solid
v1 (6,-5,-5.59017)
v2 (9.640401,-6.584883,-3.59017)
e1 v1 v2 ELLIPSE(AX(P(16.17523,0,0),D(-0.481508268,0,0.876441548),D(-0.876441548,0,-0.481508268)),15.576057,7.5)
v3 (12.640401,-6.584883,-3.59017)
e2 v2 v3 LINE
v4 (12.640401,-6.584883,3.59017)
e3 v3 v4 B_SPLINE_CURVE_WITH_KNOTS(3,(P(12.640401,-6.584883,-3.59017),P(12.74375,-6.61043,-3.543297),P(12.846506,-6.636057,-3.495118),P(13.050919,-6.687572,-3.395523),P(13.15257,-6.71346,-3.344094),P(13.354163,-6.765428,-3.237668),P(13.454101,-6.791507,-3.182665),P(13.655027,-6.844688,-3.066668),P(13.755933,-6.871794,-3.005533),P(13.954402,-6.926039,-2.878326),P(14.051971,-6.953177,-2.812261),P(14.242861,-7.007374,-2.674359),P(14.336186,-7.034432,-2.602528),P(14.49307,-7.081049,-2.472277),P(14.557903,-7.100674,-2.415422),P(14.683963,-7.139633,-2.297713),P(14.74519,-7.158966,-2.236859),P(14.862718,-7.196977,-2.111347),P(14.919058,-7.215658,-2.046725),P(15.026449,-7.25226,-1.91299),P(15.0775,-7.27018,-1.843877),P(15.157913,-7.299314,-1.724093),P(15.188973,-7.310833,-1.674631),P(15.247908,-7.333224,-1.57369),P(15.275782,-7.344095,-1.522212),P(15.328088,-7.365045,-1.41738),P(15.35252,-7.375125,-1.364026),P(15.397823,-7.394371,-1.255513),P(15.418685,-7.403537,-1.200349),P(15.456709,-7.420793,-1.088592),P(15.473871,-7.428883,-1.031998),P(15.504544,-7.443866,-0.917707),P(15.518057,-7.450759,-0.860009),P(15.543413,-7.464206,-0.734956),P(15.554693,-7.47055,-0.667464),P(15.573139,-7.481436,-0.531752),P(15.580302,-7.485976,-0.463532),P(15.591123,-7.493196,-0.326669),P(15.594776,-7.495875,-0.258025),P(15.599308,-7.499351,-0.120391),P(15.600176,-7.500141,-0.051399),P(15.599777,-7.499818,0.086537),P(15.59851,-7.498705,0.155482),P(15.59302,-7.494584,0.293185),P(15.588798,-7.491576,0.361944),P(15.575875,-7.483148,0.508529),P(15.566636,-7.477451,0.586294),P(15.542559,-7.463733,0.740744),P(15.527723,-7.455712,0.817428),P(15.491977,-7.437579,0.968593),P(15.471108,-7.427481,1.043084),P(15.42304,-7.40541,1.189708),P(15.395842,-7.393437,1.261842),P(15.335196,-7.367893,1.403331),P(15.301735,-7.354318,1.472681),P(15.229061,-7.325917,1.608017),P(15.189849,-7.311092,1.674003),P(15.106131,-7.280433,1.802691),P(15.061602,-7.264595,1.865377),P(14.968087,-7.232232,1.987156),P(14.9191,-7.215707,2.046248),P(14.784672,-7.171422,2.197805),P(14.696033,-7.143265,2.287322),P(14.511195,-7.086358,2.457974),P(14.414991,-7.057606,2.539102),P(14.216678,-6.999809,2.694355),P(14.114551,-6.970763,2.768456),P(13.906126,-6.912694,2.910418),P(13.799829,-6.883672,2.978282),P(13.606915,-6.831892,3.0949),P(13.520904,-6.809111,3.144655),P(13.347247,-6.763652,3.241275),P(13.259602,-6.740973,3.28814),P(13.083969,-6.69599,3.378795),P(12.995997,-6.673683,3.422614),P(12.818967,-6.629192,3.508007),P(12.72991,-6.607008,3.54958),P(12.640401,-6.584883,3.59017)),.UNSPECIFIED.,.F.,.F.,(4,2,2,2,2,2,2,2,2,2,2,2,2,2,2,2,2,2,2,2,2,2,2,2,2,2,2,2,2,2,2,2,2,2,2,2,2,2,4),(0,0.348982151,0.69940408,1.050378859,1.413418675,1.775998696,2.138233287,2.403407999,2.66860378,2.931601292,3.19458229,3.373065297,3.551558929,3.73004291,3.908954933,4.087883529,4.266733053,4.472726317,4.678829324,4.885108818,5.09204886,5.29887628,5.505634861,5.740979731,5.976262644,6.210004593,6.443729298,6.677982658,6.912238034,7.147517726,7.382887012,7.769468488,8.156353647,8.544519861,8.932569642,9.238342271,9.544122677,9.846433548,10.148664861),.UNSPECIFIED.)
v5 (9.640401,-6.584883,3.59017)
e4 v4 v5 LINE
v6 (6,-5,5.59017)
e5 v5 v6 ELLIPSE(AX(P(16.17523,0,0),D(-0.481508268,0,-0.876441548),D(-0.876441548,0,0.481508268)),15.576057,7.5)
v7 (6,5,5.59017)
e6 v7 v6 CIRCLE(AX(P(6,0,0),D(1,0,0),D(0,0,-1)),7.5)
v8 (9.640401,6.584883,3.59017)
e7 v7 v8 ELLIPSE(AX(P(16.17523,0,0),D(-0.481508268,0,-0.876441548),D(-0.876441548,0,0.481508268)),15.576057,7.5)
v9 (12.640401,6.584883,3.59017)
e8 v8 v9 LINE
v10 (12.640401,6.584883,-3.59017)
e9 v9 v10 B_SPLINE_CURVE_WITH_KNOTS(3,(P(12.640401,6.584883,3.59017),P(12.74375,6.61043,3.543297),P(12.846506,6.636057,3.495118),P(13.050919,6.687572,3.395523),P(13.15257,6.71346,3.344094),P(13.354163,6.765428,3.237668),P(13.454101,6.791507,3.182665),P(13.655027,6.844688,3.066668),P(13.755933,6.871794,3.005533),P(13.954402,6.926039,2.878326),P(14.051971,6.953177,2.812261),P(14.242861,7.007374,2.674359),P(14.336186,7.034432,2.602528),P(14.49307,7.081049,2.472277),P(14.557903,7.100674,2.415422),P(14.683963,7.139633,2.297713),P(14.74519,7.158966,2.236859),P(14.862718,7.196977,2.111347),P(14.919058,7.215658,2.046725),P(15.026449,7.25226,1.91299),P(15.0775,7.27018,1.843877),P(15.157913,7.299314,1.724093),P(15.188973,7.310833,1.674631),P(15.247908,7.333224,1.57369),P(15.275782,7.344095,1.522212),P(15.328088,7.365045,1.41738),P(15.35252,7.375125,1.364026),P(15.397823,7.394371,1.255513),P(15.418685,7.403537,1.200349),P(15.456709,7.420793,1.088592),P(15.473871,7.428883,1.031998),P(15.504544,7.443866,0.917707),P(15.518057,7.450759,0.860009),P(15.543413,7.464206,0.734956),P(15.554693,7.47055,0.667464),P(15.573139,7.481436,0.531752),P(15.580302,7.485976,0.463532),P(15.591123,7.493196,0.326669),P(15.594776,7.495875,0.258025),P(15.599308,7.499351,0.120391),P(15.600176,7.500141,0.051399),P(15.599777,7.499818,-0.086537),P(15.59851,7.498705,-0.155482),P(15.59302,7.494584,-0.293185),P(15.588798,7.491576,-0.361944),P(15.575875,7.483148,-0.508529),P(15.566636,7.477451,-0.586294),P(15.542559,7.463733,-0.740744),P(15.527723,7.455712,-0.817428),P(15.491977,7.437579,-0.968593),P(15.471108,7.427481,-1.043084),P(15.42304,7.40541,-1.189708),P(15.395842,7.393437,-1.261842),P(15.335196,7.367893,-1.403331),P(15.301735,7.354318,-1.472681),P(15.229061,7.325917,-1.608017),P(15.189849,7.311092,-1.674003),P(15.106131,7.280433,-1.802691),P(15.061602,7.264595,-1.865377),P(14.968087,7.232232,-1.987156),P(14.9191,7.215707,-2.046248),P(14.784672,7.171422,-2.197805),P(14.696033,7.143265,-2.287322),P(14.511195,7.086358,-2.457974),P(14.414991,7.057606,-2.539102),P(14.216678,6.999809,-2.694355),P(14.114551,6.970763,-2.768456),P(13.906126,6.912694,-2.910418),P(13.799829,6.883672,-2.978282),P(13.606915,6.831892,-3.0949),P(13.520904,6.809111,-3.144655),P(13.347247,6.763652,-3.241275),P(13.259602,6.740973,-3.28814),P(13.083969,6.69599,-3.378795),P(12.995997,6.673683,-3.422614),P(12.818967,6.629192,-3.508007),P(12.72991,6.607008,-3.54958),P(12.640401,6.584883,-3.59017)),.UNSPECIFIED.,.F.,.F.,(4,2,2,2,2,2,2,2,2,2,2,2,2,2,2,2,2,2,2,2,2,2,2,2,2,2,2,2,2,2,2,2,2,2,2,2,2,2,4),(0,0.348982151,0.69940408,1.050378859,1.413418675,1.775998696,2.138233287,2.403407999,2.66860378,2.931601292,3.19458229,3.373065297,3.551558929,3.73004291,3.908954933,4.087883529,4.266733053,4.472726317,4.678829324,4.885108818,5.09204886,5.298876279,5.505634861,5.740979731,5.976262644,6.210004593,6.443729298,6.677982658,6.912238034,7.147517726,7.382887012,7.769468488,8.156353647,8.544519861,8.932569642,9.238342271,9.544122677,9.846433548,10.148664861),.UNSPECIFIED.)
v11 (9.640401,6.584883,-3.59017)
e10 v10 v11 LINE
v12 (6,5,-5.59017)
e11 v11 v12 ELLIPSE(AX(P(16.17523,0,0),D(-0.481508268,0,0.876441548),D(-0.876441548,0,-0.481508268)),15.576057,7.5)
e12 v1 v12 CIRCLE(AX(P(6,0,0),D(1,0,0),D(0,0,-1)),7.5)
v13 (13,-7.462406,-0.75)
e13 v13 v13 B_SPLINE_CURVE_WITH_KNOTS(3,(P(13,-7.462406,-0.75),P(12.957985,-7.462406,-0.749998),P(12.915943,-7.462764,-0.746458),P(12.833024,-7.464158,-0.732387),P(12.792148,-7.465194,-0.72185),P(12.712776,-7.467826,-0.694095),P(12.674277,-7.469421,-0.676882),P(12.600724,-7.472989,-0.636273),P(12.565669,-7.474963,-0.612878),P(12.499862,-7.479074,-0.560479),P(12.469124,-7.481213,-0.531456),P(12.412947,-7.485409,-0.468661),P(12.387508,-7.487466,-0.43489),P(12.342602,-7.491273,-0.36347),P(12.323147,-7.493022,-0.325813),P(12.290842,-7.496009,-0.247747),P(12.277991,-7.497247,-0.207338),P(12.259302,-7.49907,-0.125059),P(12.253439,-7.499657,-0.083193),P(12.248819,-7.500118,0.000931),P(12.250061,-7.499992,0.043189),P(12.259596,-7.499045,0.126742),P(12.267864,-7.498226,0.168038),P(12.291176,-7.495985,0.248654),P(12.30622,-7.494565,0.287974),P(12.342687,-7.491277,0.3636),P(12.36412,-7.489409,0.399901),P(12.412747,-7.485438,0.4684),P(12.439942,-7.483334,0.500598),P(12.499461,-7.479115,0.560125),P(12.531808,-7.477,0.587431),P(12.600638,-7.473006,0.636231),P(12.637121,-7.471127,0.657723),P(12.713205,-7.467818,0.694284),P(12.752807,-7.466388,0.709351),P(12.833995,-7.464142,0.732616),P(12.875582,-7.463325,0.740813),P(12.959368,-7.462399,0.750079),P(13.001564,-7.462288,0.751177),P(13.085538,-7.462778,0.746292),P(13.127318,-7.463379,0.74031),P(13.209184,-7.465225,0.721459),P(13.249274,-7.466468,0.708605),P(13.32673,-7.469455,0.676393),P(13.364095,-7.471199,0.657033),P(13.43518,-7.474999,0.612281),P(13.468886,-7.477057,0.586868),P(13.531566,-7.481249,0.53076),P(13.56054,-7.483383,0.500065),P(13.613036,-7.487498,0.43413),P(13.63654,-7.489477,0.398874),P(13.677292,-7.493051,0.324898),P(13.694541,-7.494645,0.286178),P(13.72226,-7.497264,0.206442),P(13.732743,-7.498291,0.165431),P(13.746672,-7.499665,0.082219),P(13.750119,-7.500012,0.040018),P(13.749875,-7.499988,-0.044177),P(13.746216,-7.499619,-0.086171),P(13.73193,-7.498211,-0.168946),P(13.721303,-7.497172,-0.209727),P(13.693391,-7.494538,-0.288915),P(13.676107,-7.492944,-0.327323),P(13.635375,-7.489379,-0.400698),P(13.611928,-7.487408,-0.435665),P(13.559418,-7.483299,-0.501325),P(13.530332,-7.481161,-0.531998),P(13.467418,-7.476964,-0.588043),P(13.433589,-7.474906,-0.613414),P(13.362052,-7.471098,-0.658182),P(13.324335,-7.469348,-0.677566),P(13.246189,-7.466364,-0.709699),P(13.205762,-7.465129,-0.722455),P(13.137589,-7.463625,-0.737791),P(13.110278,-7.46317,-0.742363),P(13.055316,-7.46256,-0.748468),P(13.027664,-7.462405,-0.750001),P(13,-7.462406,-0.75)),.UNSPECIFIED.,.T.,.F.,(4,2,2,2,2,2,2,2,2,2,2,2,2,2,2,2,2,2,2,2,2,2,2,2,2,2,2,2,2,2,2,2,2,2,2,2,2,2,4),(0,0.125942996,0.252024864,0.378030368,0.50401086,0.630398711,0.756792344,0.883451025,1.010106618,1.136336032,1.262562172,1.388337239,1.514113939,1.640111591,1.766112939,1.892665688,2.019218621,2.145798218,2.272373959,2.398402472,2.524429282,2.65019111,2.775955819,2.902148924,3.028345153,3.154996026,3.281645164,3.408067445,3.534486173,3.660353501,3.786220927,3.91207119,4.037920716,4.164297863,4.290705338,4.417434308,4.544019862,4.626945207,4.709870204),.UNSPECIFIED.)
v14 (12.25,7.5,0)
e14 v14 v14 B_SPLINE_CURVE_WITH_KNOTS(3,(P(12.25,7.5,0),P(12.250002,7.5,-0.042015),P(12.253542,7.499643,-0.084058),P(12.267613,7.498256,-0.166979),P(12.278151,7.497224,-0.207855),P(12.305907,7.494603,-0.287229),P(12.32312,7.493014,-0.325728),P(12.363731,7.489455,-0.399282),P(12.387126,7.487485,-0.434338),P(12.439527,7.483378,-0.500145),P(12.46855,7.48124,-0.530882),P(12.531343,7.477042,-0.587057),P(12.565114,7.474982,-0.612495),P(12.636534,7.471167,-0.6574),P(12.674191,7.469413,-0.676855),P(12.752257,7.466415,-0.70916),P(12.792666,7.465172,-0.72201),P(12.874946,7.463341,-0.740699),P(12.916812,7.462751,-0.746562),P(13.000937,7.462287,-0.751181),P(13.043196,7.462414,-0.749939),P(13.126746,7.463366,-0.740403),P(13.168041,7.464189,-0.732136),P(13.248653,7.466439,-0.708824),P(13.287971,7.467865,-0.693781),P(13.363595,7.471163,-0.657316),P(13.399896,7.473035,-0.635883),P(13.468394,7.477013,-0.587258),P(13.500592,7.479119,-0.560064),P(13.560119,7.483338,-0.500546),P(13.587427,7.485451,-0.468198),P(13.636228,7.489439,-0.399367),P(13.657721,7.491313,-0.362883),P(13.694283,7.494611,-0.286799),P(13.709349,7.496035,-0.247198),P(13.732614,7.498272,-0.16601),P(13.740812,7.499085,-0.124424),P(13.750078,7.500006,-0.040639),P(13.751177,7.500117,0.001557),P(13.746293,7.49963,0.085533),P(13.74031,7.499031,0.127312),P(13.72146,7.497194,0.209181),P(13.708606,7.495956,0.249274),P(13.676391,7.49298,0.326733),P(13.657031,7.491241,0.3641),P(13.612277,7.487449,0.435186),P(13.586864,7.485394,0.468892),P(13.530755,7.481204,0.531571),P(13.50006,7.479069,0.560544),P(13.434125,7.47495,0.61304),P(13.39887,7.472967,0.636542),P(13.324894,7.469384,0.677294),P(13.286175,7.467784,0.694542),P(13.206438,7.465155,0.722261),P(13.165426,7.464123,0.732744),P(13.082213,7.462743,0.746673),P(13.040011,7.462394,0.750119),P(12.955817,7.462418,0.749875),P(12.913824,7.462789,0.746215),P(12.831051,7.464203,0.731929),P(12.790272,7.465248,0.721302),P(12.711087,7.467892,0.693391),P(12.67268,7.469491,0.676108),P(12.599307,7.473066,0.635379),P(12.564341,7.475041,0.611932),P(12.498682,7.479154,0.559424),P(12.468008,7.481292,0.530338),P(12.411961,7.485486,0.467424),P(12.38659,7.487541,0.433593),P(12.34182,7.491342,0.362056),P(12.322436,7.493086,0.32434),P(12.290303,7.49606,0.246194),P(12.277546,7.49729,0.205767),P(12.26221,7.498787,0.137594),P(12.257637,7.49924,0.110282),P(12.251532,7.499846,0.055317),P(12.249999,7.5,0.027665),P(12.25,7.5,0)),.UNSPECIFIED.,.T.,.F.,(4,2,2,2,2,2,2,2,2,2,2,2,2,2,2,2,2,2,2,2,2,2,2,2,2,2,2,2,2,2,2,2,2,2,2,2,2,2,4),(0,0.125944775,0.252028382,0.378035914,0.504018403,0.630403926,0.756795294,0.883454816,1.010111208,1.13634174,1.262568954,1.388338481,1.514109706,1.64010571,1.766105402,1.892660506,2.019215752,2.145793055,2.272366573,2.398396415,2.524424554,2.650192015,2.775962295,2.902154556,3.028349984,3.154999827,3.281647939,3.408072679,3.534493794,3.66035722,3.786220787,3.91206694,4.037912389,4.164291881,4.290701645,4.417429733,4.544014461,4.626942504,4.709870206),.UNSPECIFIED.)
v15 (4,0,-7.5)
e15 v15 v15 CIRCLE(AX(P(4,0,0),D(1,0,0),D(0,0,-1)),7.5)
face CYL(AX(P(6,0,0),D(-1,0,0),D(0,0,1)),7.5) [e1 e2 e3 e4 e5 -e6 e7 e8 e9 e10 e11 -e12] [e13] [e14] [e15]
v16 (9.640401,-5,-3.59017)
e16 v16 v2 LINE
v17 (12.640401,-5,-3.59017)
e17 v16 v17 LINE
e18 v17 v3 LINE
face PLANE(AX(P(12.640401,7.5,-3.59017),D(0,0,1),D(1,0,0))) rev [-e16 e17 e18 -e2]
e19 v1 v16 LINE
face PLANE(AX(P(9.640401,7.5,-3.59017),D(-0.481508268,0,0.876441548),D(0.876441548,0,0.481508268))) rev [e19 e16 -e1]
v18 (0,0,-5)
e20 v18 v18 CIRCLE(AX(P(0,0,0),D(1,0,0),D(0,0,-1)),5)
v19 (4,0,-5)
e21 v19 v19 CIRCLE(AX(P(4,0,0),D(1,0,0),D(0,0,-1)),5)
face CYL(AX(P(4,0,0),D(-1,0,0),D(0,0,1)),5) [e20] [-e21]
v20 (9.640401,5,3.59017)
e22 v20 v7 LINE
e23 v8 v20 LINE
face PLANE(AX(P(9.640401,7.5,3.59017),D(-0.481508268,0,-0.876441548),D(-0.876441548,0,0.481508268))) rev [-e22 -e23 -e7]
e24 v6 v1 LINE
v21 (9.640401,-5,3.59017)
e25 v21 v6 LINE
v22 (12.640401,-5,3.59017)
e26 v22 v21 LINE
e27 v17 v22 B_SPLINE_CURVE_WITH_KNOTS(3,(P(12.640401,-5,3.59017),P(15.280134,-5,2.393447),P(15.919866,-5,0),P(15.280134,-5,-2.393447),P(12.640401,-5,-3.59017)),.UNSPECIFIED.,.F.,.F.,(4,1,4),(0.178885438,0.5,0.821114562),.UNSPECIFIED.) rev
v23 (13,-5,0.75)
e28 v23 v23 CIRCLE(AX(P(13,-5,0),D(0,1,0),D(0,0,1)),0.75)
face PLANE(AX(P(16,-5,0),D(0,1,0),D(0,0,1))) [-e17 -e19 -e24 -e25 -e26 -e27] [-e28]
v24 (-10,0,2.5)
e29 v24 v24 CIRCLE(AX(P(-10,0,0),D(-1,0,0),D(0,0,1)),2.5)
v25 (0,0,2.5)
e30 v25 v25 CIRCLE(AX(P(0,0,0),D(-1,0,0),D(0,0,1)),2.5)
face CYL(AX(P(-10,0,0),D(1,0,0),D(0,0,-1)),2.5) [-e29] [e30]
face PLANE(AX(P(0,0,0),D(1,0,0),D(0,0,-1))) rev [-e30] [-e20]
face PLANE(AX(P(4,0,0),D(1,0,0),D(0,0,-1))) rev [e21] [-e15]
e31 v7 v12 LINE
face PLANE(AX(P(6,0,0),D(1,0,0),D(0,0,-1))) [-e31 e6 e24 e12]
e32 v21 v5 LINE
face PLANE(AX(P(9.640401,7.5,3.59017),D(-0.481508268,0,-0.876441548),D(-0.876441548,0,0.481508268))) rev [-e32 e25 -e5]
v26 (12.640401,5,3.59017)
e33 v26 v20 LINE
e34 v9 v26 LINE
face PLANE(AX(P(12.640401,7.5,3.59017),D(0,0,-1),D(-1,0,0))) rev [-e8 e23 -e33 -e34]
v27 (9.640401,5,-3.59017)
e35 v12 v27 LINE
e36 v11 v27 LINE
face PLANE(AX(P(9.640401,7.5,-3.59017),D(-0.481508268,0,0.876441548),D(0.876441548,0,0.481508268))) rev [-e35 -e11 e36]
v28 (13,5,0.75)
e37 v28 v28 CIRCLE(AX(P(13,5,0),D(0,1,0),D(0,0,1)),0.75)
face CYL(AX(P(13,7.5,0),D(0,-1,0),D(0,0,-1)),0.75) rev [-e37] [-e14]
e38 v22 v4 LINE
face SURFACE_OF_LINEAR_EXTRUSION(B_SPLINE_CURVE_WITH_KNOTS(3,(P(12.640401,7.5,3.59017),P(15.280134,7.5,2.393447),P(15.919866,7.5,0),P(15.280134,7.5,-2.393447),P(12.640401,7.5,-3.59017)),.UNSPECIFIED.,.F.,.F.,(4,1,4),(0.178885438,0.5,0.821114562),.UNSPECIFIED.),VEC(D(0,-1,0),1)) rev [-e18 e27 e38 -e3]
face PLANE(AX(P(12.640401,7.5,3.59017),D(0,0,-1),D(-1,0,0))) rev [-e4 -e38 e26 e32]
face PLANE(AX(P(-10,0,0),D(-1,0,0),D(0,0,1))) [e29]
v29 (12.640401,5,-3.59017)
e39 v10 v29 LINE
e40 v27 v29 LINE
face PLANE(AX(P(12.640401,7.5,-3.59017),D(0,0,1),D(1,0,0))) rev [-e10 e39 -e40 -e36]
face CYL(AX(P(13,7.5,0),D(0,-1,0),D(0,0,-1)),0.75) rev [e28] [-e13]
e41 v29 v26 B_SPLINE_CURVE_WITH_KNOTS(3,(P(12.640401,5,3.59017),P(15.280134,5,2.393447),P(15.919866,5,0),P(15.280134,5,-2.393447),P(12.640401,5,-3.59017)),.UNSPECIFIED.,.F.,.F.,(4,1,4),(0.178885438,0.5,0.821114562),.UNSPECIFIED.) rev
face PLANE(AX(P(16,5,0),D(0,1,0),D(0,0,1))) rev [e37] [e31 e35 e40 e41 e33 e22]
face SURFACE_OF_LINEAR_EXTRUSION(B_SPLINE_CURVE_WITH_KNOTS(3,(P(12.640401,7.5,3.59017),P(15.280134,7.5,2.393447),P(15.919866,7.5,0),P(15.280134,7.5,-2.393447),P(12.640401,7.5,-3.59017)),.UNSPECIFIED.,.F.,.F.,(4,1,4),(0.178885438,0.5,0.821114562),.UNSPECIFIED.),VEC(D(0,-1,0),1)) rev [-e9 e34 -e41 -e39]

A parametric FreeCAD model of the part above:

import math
import FreeCAD as App
import Part
import Sketcher

V = App.Vector

doc = App.newDocument("Part")
body = doc.addObject("PartDesign::Body", "Body")

sketch1 = doc.addObject("Sketcher::SketchObject", "Sketch")
body.addObject(sketch1)
sketch1.AttachmentSupport = (doc.YZ_Plane, [""])
sketch1.MapMode = "FlatFace"
sketch1.addGeometry(Part.Circle(V(0, 0, 0), V(0, 0, 1), 5), False)
sketch1.addConstraint([
    Sketcher.Constraint("Coincident", 0, 3, -1, 1),
    Sketcher.Constraint("Diameter", 0, 10.0),
])
pad1 = doc.addObject("PartDesign::Pad", "Pad")
body.addObject(pad1)
pad1.Profile = sketch1
pad1.Length = 4

sketch2 = doc.addObject("Sketcher::SketchObject", "Sketch001")
body.addObject(sketch2)
sketch2.AttachmentSupport = (doc.YZ_Plane, [""])
sketch2.MapMode = "FlatFace"
sketch2.AttachmentOffset = App.Placement(V(0, 0, 4), App.Rotation())
sketch2.addGeometry(Part.Circle(V(0, 0, 0), V(0, 0, 1), 8), False)
sketch2.addConstraint([
    Sketcher.Constraint("Coincident", 0, 3, -1, 1),
    Sketcher.Constraint("Diameter", 0, 15.0),
])
pad2 = doc.addObject("PartDesign::Pad", "Pad001")
body.addObject(pad2)
pad2.Profile = sketch2
pad2.Length = 2

sketch3 = doc.addObject("Sketcher::SketchObject", "Sketch002")
body.addObject(sketch3)
sketch3.AttachmentSupport = (doc.YZ_Plane, [""])
sketch3.MapMode = "FlatFace"
sketch3.AttachmentOffset = App.Placement(V(0, 0, 6), App.Rotation())
sketch3.addGeometry([
    Part.ArcOfCircle(Part.Circle(V(0, 0, 0), V(0, 0, 1), 8), math.radians(-48), math.radians(48)),
    Part.LineSegment(V(5, 6, 0), V(5, -6, 0)),
    Part.ArcOfCircle(Part.Circle(V(0, 0, 0), V(0, 0, 1), 8), math.radians(132), math.radians(228)),
    Part.LineSegment(V(-5, -6, 0), V(-5, 6, 0)),
], False)
sketch3.addConstraint([
    Sketcher.Constraint("Coincident", 0, 1, 1, 2),
    Sketcher.Constraint("Coincident", 1, 1, 0, 2),
    Sketcher.Constraint("Coincident", 2, 1, 3, 2),
    Sketcher.Constraint("Coincident", 3, 1, 2, 2),
    Sketcher.Constraint("Vertical", 1),
    Sketcher.Constraint("Vertical", 3),
    Sketcher.Constraint("Coincident", 0, 3, -1, 1),
    Sketcher.Constraint("Coincident", 2, 3, -1, 1),
    Sketcher.Constraint("Equal", 0, 2),
    Sketcher.Constraint("Horizontal", 1, 1, 2, 1),
    Sketcher.Constraint("Radius", 0, 7.5),
    Sketcher.Constraint("DistanceX", -1, 1, 0, 1, 5.0),
])
pad3 = doc.addObject("PartDesign::Pad", "Pad002")
body.addObject(pad3)
pad3.Profile = sketch3
pad3.Length = 10

sketch4 = doc.addObject("Sketcher::SketchObject", "Sketch003")
body.addObject(sketch4)
sketch4.AttachmentSupport = (doc.XZ_Plane, [""])
sketch4.MapMode = "FlatFace"
sketch4.AttachmentOffset = App.Placement(V(0, 0, -5), App.Rotation())
sketch4.addGeometry([
    Part.LineSegment(V(16, 5.59017, 0), V(6, 5.59017, 0)),
    Part.LineSegment(V(6, 5.59017, 0), V(9.640401, 3.59017, 0)),
    Part.LineSegment(V(9.640401, 3.59017, 0), V(12.640401, 3.59017, 0)),
    Part.BSplineCurve([V(12.640401, -3.59017, 0), V(15.280134, -2.393447, 0), V(15.919866, 0, 0), V(15.280134, 2.393447, 0), V(12.640401, 3.59017, 0)], [4, 1, 4], [0.178885438, 0.5, 0.821114562], False, 3, [1, 1, 1, 1, 1], False),
    Part.LineSegment(V(12.640401, -3.59017, 0), V(9.640401, -3.59017, 0)),
    Part.LineSegment(V(9.640401, -3.59017, 0), V(6, -5.59017, 0)),
    Part.LineSegment(V(6, -5.59017, 0), V(16, -5.59017, 0)),
    Part.LineSegment(V(16, -5.59017, 0), V(16, 5.59017, 0)),
], False)
sketch4.addConstraint([
    Sketcher.Constraint("Block", 3),
    Sketcher.Constraint("Coincident", 0, 2, 1, 1),
    Sketcher.Constraint("Coincident", 1, 2, 2, 1),
    Sketcher.Constraint("Coincident", 2, 2, 3, 2),
    Sketcher.Constraint("Coincident", 3, 1, 4, 1),
    Sketcher.Constraint("Coincident", 4, 2, 5, 1),
    Sketcher.Constraint("Coincident", 5, 2, 6, 1),
    Sketcher.Constraint("Coincident", 6, 2, 7, 1),
    Sketcher.Constraint("Coincident", 7, 2, 0, 1),
    Sketcher.Constraint("Horizontal", 0),
    Sketcher.Constraint("Horizontal", 2),
    Sketcher.Constraint("Horizontal", 4),
    Sketcher.Constraint("Horizontal", 6),
    Sketcher.Constraint("Vertical", 7),
    Sketcher.Constraint("Symmetric", 0, 2, 5, 2, -1),
    Sketcher.Constraint("Vertical", 1, 2, 4, 2),
    Sketcher.Constraint("DistanceX", 0, 2, 0, 1, 10.0),
    Sketcher.Constraint("DistanceX", 2, 1, 2, 2, 3.0),
    Sketcher.Constraint("DistanceX", -1, 1, 0, 2, 6.0),
    Sketcher.Constraint("DistanceY", 1, 2, 0, 2, 2.0),
])
pocket1 = doc.addObject("PartDesign::Pocket", "Pocket")
body.addObject(pocket1)
pocket1.Profile = sketch4
pocket1.Type = "ThroughAll"
pocket1.Midplane = True

sketch5 = doc.addObject("Sketcher::SketchObject", "Sketch004")
body.addObject(sketch5)
sketch5.AttachmentSupport = (doc.XZ_Plane, [""])
sketch5.MapMode = "FlatFace"
sketch5.AttachmentOffset = App.Placement(V(0, 0, -5), App.Rotation())
sketch5.addGeometry(Part.Circle(V(13, 0, 0), V(0, 0, 1), 0.8), False)
sketch5.addConstraint([
    Sketcher.Constraint("PointOnObject", 0, 3, -1),
    Sketcher.Constraint("Diameter", 0, 1.5),
    Sketcher.Constraint("DistanceX", -1, 1, 0, 3, 13.0),
])
pocket2 = doc.addObject("PartDesign::Pocket", "Pocket001")
body.addObject(pocket2)
pocket2.Profile = sketch5
pocket2.Type = "ThroughAll"
pocket2.Midplane = True

sketch6 = doc.addObject("Sketcher::SketchObject", "Sketch005")
body.addObject(sketch6)
sketch6.AttachmentSupport = (doc.YZ_Plane, [""])
sketch6.MapMode = "FlatFace"
sketch6.addGeometry(Part.Circle(V(0, 0, 0), V(0, 0, 1), 2.5), False)
sketch6.addConstraint([
    Sketcher.Constraint("Coincident", 0, 3, -1, 1),
    Sketcher.Constraint("Diameter", 0, 5.0),
])
pad4 = doc.addObject("PartDesign::Pad", "Pad003")
body.addObject(pad4)
pad4.Profile = sketch6
pad4.Length = 10
pad4.Reversed = True

doc.recompute()
